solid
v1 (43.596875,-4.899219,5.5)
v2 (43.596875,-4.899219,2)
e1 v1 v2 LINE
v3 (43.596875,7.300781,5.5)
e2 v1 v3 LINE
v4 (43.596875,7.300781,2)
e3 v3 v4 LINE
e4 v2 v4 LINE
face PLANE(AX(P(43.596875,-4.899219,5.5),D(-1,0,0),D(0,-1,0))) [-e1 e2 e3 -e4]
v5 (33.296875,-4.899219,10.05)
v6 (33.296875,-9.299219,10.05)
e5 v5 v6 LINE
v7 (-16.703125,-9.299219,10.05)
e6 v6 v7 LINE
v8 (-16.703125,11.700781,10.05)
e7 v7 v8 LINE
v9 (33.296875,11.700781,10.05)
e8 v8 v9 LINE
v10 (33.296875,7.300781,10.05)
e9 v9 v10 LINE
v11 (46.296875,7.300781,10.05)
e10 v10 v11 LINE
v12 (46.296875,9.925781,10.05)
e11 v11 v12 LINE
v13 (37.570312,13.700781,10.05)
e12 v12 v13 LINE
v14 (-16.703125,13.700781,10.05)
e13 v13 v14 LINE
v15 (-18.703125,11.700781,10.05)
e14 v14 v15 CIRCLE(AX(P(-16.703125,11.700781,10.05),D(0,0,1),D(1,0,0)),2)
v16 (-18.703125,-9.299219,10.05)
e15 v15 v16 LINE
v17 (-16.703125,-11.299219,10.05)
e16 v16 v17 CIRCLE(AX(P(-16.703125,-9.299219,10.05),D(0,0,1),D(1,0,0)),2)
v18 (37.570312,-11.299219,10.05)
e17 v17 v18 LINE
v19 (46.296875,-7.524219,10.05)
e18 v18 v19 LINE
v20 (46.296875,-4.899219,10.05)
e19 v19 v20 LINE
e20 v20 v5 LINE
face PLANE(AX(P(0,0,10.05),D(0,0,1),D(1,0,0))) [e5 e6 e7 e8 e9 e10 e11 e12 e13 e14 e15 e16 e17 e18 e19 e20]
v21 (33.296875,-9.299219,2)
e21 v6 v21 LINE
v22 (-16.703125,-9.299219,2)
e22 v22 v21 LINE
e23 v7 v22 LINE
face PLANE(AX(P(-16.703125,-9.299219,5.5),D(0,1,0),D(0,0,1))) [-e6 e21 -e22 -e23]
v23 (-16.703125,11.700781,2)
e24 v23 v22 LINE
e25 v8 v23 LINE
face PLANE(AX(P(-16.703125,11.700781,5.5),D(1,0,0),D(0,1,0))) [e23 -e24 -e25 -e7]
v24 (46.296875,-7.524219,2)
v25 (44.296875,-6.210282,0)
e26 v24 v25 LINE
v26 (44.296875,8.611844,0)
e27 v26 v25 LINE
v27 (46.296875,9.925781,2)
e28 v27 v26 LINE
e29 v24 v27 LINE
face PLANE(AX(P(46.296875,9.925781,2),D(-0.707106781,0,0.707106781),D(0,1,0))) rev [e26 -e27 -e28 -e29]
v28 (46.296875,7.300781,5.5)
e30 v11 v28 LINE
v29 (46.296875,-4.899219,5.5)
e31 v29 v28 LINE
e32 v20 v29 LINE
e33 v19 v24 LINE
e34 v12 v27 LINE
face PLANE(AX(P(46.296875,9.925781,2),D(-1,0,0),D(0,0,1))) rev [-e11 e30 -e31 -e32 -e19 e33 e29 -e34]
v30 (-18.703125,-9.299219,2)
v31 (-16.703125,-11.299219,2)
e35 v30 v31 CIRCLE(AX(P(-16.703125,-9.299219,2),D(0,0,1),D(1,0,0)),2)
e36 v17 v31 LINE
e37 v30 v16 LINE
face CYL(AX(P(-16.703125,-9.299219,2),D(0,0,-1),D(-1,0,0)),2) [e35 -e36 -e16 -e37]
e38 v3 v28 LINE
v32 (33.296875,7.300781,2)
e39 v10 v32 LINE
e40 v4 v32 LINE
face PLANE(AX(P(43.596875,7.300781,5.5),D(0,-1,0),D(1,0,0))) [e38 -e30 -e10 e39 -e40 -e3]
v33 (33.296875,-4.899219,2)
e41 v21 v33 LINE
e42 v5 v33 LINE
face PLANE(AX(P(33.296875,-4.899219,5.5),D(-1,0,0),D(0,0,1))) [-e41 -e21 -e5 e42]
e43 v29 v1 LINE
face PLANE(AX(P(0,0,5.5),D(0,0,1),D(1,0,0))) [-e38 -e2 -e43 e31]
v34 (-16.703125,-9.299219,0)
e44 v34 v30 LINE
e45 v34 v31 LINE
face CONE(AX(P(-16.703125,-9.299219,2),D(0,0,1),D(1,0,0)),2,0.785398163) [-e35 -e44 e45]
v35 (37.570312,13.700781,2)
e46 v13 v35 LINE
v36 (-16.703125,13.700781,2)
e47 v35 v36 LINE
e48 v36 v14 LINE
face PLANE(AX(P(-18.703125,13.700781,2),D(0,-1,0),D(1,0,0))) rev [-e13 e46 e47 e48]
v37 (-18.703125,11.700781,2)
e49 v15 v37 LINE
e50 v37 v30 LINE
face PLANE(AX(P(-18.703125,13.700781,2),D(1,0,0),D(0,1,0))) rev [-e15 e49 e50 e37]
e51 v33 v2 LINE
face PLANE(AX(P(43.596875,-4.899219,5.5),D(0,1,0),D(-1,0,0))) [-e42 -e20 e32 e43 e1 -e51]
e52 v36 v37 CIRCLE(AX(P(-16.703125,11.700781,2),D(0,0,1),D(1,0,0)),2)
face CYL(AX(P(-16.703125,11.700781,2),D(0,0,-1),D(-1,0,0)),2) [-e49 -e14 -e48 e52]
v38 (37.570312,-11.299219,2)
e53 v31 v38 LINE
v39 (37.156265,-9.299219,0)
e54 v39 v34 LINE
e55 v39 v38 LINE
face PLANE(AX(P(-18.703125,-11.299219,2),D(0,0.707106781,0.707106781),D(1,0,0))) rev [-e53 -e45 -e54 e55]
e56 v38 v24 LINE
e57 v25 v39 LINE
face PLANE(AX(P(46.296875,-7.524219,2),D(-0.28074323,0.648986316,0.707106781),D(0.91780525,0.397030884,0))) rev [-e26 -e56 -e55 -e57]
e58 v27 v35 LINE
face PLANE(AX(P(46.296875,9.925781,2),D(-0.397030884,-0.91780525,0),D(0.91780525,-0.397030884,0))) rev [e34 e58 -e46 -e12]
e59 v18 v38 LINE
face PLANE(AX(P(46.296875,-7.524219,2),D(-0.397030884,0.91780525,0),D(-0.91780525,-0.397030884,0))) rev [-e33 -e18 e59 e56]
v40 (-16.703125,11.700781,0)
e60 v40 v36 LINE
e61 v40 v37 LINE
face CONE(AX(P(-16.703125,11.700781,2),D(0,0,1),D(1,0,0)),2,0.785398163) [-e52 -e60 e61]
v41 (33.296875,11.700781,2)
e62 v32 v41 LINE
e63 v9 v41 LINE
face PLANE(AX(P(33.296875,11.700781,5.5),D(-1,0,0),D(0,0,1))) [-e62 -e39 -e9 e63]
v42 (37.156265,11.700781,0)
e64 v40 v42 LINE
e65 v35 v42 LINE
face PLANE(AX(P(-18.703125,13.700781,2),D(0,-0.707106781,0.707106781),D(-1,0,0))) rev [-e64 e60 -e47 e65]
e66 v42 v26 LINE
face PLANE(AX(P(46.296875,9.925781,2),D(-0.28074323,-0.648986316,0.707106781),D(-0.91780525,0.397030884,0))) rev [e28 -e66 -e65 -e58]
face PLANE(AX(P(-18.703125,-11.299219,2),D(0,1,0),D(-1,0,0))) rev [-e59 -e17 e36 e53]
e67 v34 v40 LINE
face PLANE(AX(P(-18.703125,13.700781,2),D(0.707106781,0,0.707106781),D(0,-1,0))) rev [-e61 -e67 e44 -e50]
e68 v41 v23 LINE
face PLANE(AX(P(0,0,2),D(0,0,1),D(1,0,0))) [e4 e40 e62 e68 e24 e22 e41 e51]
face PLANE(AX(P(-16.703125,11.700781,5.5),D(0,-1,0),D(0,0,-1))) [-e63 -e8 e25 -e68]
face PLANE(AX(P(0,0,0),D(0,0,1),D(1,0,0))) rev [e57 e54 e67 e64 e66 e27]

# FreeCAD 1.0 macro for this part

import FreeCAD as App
import Part
import Sketcher


def edges_at(feature, points):
    """Names of the edges that pass closest to the given points."""
    edges = feature.Shape.Edges
    near = lambda p: min(range(len(edges)), key=lambda i: edges[i].distToShape(Part.Vertex(*p))[0])
    return sorted({f"Edge{near(p) + 1}" for p in points})


def add_polygon(sketch, points):
    """Adds a closed chain of lines whose ends are joined by coincident constraints."""
    first, n = sketch.GeometryCount, len(points)
    for a, b in zip(points, points[1:] + points[:1]):
        sketch.addGeometry(Part.LineSegment(App.Vector(*a, 0), App.Vector(*b, 0)), False)
    for i in range(n):
        sketch.addConstraint(Sketcher.Constraint("Coincident", first + i, 2, first + (i + 1) % n, 1))

doc = App.newDocument("Part")
body = doc.addObject("PartDesign::Body", "Body")

sketch1 = doc.addObject("Sketcher::SketchObject", "Sketch")
body.addObject(sketch1)
sketch1.AttachmentSupport = (doc.XY_Plane, [""])
sketch1.MapMode = "FlatFace"
add_polygon(sketch1, [(46, 10), (38, 14), (-19, 14), (-19, -11), (38, -11), (46, -8)])
sketch1.addConstraint([
    Sketcher.Constraint("Horizontal", 1),
    Sketcher.Constraint("Vertical", 2),
    Sketcher.Constraint("Horizontal", 3),
    Sketcher.Constraint("Vertical", 5),
    Sketcher.Constraint("Vertical", 0, 2, 3, 2),
    Sketcher.Constraint("Equal", 0, 4),
    Sketcher.Constraint("DistanceY", 2, 2, 2, 1, 25.0),
    Sketcher.Constraint("DistanceX", 2, 2, 4, 2, 65.0),
    Sketcher.Constraint("DistanceY", 5, 1, 5, 2, 17.45),
    Sketcher.Constraint("DistanceX", 1, 2, 1, 1, 56.273438),
    Sketcher.Constraint("DistanceY", -1, 1, 0, 2, 13.700781),
    Sketcher.Constraint("DistanceX", -1, 1, 0, 2, 37.570312),
])
pad1 = doc.addObject("PartDesign::Pad", "Pad")
body.addObject(pad1)
pad1.Profile = sketch1
pad1.Length = 2

sketch2 = doc.addObject("Sketcher::SketchObject", "Sketch001")
body.addObject(sketch2)
sketch2.AttachmentSupport = (doc.XY_Plane, [""])
sketch2.MapMode = "FlatFace"
sketch2.AttachmentOffset = App.Placement(App.Vector(0, 0, 2), App.Rotation())
add_polygon(sketch2, [(-18.7, -11.3), (37.6, -11.3), (46.3, -7.5), (46.3, 9.9), (37.6, 13.7), (-18.7, 13.7)])
add_polygon(sketch2, [(-16.7, -9.3), (-16.7, 11.7), (33.3, 11.7), (33.3, 7.3), (43.6, 7.3), (43.6, -4.9), (33.3, -4.9), (33.3, -9.3)])
sketch2.addConstraint([
    Sketcher.Constraint("Horizontal", 0),
    Sketcher.Constraint("Vertical", 2),
    Sketcher.Constraint("Horizontal", 4),
    Sketcher.Constraint("Vertical", 5),
    Sketcher.Constraint("Vertical", 6),
    Sketcher.Constraint("Horizontal", 7),
    Sketcher.Constraint("Vertical", 8),
    Sketcher.Constraint("Horizontal", 9),
    Sketcher.Constraint("Vertical", 10),
    Sketcher.Constraint("Horizontal", 11),
    Sketcher.Constraint("Vertical", 12),
    Sketcher.Constraint("Horizontal", 13),
    Sketcher.Constraint("Vertical", 0, 2, 3, 2),
    Sketcher.Constraint("Vertical", 8, 2, 11, 2),
    Sketcher.Constraint("Equal", 8, 12),
    Sketcher.Constraint("Equal", 1, 3),
    Sketcher.Constraint("DistanceX", 7, 1, 7, 2, 50.0),
    Sketcher.Constraint("DistanceY", 5, 2, 5, 1, 25.0),
    Sketcher.Constraint("DistanceY", 6, 1, 6, 2, 21.0),
    Sketcher.Constraint("DistanceX", 9, 1, 9, 2, 10.3),
    Sketcher.Constraint("DistanceY", 8, 2, 8, 1, 4.4),
    Sketcher.Constraint("DistanceX", 4, 2, 2, 2, 65.0),
    Sketcher.Constraint("DistanceX", 4, 2, 6, 2, 2.0),
    Sketcher.Constraint("DistanceY", 6, 2, 4, 2, 2.0),
    Sketcher.Constraint("DistanceY", 2, 1, 2, 2, 17.45),
    Sketcher.Constraint("DistanceX", 0, 1, 0, 2, 56.273438),
    Sketcher.Constraint("DistanceY", 0, 2, -1, 1, 11.299219),
    Sketcher.Constraint("DistanceX", -1, 1, 0, 2, 37.570312),
])
pad2 = doc.addObject("PartDesign::Pad", "Pad001")
body.addObject(pad2)
pad2.Profile = sketch2
pad2.Length = 3.5

sketch3 = doc.addObject("Sketcher::SketchObject", "Sketch002")
body.addObject(sketch3)
sketch3.AttachmentSupport = (doc.XY_Plane, [""])
sketch3.MapMode = "FlatFace"
sketch3.AttachmentOffset = App.Placement(App.Vector(0, 0, 5.5), App.Rotation())
add_polygon(sketch3, [(-18.7, 13.7), (-18.7, -11.3), (37.6, -11.3), (46.3, -7.5), (46.3, -4.9), (33.3, -4.9), (33.3, -9.3), (-16.7, -9.3), (-16.7, 11.7), (33.3, 11.7), (33.3, 7.3), (46.3, 7.3), (46.3, 9.9), (37.6, 13.7)])
sketch3.addConstraint([
    Sketcher.Constraint("Vertical", 0),
    Sketcher.Constraint("Horizontal", 1),
    Sketcher.Constraint("Vertical", 3),
    Sketcher.Constraint("Horizontal", 4),
    Sketcher.Constraint("Vertical", 5),
    Sketcher.Constraint("Horizontal", 6),
    Sketcher.Constraint("Vertical", 7),
    Sketcher.Constraint("Horizontal", 8),
    Sketcher.Constraint("Vertical", 9),
    Sketcher.Constraint("Horizontal", 10),
    Sketcher.Constraint("Vertical", 11),
    Sketcher.Constraint("Horizontal", 13),
    Sketcher.Constraint("Vertical", 5, 2, 8, 2),
    Sketcher.Constraint("Vertical", 3, 2, 10, 2),
    Sketcher.Constraint("Vertical", 1, 2, 12, 2),
    Sketcher.Constraint("Equal", 5, 9),
    Sketcher.Constraint("Equal", 3, 11),
    Sketcher.Constraint("Equal", 2, 12),
    Sketcher.Constraint("DistanceX", 4, 2, 4, 1, 13.0),
    Sketcher.Constraint("DistanceX", 6, 2, 6, 1, 50.0),
    Sketcher.Constraint("DistanceY", 0, 2, 0, 1, 25.0),
    Sketcher.Constraint("DistanceY", 7, 1, 7, 2, 21.0),
    Sketcher.Constraint("DistanceY", 5, 2, 5, 1, 4.4),
    Sketcher.Constraint("DistanceX", 0, 2, 2, 2, 65.0),
    Sketcher.Constraint("DistanceY", 3, 1, 3, 2, 2.625),
    Sketcher.Constraint("DistanceX", 1, 1, 1, 2, 56.273438),
    Sketcher.Constraint("DistanceY", 0, 2, -1, 1, 11.299219),
    Sketcher.Constraint("DistanceX", 0, 2, -1, 1, 18.703125),
])
pad3 = doc.addObject("PartDesign::Pad", "Pad002")
body.addObject(pad3)
pad3.Profile = sketch3
pad3.Length = 4.55
doc.recompute()

fillet = doc.addObject("PartDesign::Fillet", "Fillet")
body.addObject(fillet)
fillet.Base = (pad3, edges_at(pad3, [(-18.703, 13.701, 5.025), (-18.703, -11.299, 5.025)]))
fillet.Radius = 2
doc.recompute()

chamfer = doc.addObject("PartDesign::Chamfer", "Chamfer")
body.addObject(chamfer)
chamfer.Base = (fillet, edges_at(fillet, [
    (10.434, 13.701, 0),
    (10.434, -11.299, 0),
    (-18.703, 1.201, 0),
    (-18.117, 13.115, 0),
    (-18.117, -10.713, 0),
]))
chamfer.Size = 2
doc.recompute()

chamfer2 = doc.addObject("PartDesign::Chamfer", "Chamfer001")
body.addObject(chamfer2)
chamfer2.Base = (chamfer, edges_at(chamfer, [(44.245, 10.813, 0), (46.297, 1.201, 0), (44.245, -8.412, 0)]))
chamfer2.Size = 2

doc.recompute()
